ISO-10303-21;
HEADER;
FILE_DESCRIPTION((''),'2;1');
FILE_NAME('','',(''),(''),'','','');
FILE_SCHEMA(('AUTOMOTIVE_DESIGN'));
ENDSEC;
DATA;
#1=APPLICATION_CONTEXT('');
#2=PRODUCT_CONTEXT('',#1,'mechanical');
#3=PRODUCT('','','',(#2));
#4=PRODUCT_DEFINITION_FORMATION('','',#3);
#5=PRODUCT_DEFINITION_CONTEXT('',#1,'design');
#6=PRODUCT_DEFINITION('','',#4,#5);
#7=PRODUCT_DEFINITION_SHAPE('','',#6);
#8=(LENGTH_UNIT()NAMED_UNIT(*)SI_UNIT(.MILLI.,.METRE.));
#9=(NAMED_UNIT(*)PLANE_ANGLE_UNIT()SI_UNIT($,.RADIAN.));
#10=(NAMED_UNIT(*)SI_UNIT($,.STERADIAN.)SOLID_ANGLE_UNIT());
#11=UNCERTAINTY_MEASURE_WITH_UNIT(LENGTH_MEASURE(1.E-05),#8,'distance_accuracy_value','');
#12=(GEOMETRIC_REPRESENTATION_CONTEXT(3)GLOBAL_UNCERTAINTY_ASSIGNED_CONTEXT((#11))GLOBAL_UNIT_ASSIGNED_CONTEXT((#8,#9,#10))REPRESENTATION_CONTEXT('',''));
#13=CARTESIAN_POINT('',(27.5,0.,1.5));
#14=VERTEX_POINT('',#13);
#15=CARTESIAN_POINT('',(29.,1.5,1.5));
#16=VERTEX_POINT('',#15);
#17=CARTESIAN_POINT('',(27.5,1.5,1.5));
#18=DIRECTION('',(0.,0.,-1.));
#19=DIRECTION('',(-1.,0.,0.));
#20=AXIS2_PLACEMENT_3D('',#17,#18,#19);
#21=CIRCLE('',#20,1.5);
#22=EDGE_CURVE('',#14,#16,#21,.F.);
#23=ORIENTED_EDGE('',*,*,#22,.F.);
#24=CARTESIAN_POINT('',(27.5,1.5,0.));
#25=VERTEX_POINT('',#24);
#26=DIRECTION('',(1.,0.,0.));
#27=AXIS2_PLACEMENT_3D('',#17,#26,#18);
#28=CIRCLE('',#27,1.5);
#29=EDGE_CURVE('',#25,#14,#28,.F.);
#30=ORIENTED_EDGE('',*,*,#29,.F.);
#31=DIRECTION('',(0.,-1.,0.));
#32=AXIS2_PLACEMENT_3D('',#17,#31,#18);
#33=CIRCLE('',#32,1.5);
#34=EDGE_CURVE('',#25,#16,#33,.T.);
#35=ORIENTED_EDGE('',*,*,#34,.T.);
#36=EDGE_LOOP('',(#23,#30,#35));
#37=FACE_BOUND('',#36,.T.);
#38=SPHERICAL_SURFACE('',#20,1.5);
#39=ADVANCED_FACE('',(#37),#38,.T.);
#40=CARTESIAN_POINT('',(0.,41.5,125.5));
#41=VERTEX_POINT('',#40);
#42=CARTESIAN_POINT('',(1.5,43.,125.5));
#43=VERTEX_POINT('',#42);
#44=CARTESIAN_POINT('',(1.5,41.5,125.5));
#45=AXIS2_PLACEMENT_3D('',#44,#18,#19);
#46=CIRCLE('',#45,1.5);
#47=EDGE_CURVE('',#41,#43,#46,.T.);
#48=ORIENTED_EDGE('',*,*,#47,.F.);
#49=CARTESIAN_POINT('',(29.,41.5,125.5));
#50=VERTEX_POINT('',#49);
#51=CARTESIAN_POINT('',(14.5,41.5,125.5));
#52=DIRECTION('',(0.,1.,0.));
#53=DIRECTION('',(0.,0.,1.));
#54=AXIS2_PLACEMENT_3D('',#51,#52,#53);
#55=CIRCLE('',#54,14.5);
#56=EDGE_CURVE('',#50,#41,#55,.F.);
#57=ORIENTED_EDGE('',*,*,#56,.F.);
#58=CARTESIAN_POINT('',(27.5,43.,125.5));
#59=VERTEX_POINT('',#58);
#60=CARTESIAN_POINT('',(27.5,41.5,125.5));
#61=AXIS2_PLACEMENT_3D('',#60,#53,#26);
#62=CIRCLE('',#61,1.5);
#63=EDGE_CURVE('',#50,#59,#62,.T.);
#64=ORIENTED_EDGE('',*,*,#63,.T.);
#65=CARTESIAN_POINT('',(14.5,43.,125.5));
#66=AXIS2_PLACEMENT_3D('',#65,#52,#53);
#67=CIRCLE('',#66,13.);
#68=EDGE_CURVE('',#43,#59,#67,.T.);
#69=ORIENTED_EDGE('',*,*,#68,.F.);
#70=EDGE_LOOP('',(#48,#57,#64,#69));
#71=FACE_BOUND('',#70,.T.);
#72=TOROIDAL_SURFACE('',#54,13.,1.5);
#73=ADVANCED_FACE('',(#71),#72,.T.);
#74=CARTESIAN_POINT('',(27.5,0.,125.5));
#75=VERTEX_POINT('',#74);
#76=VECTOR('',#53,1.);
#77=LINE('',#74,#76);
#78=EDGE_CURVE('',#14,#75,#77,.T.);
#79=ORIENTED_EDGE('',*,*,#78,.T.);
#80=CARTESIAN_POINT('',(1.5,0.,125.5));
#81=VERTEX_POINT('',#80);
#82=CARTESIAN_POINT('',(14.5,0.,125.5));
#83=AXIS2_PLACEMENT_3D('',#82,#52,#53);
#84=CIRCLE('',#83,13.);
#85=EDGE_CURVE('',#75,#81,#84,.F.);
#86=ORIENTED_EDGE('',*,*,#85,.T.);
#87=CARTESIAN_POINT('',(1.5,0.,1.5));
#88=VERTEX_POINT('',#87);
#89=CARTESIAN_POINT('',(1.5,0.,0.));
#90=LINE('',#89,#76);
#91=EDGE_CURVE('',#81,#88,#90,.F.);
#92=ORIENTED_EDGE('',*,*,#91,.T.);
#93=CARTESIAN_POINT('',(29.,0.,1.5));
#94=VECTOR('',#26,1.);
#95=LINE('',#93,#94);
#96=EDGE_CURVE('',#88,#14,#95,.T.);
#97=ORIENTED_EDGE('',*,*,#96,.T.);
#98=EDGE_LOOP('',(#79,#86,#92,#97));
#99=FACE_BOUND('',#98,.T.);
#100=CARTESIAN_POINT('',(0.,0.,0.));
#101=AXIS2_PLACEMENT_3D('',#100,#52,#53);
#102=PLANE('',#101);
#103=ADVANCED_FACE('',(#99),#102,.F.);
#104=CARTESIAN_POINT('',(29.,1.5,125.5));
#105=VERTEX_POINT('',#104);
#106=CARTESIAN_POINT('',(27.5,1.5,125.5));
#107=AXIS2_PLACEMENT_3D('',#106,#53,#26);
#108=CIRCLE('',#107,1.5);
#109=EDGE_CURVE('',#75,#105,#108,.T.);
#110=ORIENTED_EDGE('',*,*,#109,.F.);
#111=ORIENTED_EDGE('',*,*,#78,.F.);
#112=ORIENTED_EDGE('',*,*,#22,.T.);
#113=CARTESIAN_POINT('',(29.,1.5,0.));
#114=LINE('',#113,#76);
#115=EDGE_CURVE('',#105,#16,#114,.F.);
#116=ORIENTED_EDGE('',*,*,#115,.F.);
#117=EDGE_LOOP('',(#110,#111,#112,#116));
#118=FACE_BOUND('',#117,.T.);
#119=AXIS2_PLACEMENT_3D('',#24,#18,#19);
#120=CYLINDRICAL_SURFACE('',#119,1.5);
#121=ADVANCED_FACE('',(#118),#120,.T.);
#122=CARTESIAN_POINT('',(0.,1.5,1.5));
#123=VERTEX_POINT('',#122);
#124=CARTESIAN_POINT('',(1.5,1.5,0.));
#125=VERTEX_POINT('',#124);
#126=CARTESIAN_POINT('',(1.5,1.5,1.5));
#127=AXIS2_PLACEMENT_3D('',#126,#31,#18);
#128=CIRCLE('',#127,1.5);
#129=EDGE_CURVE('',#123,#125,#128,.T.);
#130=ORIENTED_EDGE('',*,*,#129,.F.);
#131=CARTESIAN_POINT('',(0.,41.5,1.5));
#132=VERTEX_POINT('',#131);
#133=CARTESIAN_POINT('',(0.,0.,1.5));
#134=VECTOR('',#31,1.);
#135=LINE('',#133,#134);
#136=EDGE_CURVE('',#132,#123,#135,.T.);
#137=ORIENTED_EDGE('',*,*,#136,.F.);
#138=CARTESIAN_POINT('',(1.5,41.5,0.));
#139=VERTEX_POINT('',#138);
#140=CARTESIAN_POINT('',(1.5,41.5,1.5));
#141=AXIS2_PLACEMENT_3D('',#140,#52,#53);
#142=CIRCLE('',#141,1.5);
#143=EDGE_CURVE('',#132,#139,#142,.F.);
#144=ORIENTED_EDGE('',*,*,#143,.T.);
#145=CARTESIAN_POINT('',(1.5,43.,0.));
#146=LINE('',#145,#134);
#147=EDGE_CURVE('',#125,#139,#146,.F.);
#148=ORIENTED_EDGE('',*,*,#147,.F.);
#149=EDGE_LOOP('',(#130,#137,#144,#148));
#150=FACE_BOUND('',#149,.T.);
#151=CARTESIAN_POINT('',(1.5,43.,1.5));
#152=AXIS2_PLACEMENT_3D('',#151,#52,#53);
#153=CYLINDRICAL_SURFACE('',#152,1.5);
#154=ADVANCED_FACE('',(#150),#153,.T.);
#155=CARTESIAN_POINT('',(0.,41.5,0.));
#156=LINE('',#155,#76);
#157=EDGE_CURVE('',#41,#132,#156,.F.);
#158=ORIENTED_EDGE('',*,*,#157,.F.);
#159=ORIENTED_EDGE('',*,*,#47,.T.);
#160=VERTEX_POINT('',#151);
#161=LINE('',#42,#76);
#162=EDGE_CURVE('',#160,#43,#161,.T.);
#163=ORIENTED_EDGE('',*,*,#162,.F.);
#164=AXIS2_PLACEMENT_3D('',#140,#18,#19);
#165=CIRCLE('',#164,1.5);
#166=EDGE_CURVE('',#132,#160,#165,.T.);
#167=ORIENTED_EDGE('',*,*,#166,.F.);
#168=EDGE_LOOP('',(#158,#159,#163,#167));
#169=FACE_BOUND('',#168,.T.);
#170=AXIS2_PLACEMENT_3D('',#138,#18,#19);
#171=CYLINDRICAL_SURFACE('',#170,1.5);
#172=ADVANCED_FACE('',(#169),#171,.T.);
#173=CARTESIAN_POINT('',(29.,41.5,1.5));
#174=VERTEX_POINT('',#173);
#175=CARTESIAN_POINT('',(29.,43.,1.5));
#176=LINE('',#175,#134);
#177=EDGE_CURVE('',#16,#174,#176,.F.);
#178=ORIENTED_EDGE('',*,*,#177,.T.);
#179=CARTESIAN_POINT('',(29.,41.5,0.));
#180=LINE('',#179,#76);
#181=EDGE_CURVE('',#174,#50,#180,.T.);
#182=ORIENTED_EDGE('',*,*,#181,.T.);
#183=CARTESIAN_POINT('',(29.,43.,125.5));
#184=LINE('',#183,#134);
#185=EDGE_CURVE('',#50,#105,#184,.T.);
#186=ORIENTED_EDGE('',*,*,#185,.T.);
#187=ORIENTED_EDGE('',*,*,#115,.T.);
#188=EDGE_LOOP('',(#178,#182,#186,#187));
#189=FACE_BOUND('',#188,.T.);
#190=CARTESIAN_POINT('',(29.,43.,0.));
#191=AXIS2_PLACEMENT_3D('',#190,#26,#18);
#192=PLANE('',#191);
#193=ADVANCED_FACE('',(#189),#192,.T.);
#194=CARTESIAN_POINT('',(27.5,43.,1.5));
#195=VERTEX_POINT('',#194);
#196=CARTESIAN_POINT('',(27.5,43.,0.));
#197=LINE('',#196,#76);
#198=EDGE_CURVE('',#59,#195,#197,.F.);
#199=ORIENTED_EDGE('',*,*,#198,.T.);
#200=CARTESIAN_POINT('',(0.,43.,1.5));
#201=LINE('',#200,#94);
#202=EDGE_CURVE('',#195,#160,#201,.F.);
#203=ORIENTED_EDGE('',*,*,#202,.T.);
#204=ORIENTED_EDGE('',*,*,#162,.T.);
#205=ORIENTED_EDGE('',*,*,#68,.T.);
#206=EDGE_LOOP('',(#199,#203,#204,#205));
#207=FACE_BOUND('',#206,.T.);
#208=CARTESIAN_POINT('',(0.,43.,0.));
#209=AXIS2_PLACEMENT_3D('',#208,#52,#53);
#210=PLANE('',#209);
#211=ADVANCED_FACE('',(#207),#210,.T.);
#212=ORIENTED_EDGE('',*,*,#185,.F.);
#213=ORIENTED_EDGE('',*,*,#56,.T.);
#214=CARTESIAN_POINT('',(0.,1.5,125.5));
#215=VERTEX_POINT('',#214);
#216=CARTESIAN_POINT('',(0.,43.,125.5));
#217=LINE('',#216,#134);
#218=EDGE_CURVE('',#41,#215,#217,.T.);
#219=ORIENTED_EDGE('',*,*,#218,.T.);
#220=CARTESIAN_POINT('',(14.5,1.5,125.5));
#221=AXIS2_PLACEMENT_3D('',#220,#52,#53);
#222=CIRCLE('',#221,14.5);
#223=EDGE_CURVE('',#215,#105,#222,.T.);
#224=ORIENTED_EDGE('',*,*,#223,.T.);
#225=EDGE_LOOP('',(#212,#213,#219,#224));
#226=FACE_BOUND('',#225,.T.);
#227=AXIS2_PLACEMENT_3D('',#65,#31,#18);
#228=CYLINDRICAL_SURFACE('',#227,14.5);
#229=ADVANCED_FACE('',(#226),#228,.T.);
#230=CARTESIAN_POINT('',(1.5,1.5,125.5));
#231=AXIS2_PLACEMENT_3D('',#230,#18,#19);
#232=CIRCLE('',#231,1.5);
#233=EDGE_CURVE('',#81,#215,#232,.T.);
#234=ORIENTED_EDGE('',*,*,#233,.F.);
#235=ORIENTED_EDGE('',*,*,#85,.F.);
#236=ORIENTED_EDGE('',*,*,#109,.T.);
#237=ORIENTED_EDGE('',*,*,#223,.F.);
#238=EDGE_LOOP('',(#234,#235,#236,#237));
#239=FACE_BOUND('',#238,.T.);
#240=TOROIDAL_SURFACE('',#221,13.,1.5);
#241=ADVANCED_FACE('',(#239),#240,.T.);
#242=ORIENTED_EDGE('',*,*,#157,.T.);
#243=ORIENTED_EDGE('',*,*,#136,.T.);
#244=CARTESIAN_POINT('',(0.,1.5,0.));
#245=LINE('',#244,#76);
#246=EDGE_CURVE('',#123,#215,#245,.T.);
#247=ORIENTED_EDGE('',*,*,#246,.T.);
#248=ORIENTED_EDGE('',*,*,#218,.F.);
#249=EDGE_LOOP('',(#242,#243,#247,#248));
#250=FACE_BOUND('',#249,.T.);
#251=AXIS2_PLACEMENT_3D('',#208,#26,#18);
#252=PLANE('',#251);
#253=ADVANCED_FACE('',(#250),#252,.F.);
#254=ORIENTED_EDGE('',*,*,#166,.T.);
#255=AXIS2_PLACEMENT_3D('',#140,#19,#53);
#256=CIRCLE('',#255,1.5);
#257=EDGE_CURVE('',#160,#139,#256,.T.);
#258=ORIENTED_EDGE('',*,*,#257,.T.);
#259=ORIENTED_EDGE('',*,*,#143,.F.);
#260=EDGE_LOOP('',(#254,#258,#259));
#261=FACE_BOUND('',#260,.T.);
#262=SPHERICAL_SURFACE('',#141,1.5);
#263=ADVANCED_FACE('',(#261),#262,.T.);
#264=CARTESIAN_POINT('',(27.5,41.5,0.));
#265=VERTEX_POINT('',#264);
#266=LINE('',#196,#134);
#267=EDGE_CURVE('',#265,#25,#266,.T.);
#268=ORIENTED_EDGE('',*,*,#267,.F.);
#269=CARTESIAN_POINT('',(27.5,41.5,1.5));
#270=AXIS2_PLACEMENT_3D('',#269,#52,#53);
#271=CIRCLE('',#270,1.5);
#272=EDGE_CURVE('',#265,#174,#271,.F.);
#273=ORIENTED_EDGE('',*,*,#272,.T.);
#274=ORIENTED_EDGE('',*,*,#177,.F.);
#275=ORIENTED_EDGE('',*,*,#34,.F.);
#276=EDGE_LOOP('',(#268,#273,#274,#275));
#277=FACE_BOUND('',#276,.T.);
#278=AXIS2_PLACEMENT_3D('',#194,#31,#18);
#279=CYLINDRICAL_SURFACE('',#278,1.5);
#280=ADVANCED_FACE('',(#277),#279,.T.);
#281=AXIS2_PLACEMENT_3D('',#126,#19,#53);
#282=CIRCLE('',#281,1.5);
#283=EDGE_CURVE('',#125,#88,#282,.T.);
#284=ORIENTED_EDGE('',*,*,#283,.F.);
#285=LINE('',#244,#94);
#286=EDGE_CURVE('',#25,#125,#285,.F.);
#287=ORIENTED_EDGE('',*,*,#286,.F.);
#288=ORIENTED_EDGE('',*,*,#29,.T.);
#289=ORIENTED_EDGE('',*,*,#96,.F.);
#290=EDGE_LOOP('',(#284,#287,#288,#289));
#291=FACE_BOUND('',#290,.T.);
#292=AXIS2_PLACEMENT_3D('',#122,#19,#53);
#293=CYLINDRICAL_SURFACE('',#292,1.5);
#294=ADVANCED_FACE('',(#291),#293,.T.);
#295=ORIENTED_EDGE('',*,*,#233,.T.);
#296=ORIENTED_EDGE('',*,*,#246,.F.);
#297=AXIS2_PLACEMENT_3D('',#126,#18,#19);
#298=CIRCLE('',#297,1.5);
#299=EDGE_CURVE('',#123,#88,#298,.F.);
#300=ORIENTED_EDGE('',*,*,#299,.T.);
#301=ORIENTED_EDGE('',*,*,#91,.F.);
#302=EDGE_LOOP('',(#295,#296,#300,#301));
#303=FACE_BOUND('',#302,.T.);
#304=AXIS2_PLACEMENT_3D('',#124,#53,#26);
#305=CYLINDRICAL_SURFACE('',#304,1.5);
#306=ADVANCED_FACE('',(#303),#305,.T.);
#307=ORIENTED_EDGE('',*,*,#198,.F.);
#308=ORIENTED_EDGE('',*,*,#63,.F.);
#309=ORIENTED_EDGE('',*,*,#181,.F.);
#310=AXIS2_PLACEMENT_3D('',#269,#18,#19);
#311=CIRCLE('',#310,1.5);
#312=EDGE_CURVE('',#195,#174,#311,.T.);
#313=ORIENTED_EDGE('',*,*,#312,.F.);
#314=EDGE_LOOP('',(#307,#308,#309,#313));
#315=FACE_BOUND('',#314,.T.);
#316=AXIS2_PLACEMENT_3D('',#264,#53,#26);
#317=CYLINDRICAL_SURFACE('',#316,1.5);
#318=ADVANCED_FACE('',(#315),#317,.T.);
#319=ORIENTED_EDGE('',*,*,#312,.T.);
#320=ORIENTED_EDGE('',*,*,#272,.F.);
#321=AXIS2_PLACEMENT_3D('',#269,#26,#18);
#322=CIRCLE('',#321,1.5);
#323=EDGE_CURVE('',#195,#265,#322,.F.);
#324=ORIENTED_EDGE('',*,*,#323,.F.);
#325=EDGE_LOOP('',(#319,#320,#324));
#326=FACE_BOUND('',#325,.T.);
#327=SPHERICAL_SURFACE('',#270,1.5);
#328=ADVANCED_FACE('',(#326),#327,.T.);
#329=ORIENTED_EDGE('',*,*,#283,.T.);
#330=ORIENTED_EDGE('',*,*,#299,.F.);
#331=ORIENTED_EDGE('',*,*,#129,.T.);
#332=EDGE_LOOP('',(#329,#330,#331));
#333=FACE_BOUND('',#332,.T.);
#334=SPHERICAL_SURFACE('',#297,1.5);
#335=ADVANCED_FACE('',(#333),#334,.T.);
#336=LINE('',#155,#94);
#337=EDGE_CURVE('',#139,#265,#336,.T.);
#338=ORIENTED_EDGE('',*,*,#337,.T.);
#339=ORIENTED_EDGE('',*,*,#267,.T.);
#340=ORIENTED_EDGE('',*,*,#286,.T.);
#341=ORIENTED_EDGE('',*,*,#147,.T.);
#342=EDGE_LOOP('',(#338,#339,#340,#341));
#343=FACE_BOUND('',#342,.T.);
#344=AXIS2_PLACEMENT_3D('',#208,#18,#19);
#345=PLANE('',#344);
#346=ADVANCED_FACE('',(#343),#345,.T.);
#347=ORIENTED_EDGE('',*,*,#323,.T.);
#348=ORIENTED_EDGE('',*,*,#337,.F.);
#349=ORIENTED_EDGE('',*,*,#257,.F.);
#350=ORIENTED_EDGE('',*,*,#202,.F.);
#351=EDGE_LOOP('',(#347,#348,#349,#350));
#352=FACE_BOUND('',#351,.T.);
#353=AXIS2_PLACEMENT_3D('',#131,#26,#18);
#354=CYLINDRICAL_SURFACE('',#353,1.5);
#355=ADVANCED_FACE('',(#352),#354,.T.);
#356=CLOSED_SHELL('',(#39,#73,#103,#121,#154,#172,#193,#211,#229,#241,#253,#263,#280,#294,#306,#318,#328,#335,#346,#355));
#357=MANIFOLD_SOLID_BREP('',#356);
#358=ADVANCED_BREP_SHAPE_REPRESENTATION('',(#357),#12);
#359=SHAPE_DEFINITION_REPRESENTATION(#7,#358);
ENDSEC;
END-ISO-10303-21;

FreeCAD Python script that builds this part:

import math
import FreeCAD as App
import Part
import Sketcher

V = App.Vector

doc = App.newDocument("Part")
body = doc.addObject("PartDesign::Body", "Body")

sketch1 = body.newObject("Sketcher::SketchObject", "Sketch")
sketch1.AttachmentSupport = (doc.getObject("XZ_Plane"), [""])
sketch1.MapMode = "FlatFace"
sketch1.addGeometry([
    Part.LineSegment(V(0, 0, 0), V(0, 126, 0)),
    Part.ArcOfCircle(Part.Circle(V(14, 126, 0), V(0, 0, 1), 14), math.radians(0), math.radians(180)),
    Part.LineSegment(V(29, 126, 0), V(29, 0, 0)),
    Part.LineSegment(V(29, 0, 0), V(0, 0, 0)),
], False)
sketch1.addConstraint([
    Sketcher.Constraint("Tangent", 0, 2, 1, 2),
    Sketcher.Constraint("Tangent", 1, 1, 2, 1),
    Sketcher.Constraint("Coincident", 2, 2, 3, 1),
    Sketcher.Constraint("Coincident", 3, 2, 0, 1),
    Sketcher.Constraint("Vertical", 0),
    Sketcher.Constraint("Vertical", 2),
    Sketcher.Constraint("Horizontal", 3),
    Sketcher.Constraint("Coincident", 3, 2, -1, 1),
    Sketcher.Constraint("Radius", 1, 14.5),
    Sketcher.Constraint("DistanceY", 0, 1, 0, 2, 125.5),
])
pad1 = body.newObject("PartDesign::Pad", "Pad")
pad1.Profile = sketch1
pad1.Length = 43
pad1.Reversed = True
doc.recompute()

fillet = body.newObject("PartDesign::Fillet", "Fillet")
fillet.Base = (pad1, ["Edge1"])
fillet.UseAllEdges = True
fillet.Radius = 1.5

doc.recompute()
